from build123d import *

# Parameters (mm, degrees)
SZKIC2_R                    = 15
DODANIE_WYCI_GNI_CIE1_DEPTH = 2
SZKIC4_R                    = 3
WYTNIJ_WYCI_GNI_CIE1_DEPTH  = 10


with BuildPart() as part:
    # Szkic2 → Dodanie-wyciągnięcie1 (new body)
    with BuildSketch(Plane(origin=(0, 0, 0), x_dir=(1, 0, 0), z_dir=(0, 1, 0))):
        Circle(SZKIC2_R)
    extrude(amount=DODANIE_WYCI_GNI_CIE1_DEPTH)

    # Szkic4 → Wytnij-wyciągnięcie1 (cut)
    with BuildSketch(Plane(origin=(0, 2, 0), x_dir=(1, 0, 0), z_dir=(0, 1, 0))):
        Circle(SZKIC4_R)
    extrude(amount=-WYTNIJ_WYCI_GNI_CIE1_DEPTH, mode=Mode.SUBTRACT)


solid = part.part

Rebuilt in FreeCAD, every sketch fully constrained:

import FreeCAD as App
import Part
import Sketcher

V = App.Vector

doc = App.newDocument("Part")
body = doc.addObject("PartDesign::Body", "Body")

# Sketch on XZ plane
sketch1 = body.newObject("Sketcher::SketchObject", "Sketch")
sketch1.AttachmentSupport = (doc.getObject("XZ_Plane"), [""])
sketch1.MapMode = "FlatFace"
sketch1.addGeometry(Part.Circle(V(0, 0, 0), V(0, 0, 1), 15), False)
sketch1.addConstraint([
    Sketcher.Constraint("Coincident", 0, 3, -1, 1),
    Sketcher.Constraint("Diameter", 0, 30.0),
])
pad1 = body.newObject("PartDesign::Pad", "Pad")
pad1.Profile = sketch1
pad1.Length = 2
pad1.Reversed = True

# Sketch on XZ plane
sketch2 = body.newObject("Sketcher::SketchObject", "Sketch001")
sketch2.AttachmentSupport = (doc.getObject("XZ_Plane"), [""])
sketch2.MapMode = "FlatFace"
sketch2.AttachmentOffset = App.Placement(V(0, 0, -2), App.Rotation())
sketch2.addGeometry(Part.Circle(V(0, 0, 0), V(0, 0, 1), 3), False)
sketch2.addConstraint([
    Sketcher.Constraint("Coincident", 0, 3, -1, 1),
    Sketcher.Constraint("Diameter", 0, 6.0),
])
pocket1 = body.newObject("PartDesign::Pocket", "Pocket")
pocket1.Profile = sketch2
pocket1.Length = 10
pocket1.Reversed = True

doc.recompute()
